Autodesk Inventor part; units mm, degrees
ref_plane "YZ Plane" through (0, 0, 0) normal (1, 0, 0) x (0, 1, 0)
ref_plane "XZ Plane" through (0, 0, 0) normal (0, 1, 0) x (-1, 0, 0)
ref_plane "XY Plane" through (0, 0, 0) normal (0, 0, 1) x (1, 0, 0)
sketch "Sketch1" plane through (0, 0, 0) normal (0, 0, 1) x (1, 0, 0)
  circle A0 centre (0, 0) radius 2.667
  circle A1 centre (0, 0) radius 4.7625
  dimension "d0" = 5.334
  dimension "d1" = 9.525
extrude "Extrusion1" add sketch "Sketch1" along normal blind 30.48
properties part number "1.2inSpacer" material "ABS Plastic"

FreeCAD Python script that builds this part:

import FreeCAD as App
import Part
import Sketcher

V = App.Vector
Q = App.Units.Quantity

doc = App.newDocument("Part")
params = doc.addObject("Spreadsheet::Sheet", "Params")
for row, (alias, value) in enumerate([
    ("sketch1_diameter", "0.21 in"),
    ("sketch1_diameter2", "0.375 in"),
    ("pad1_length", "1.2 in"),
], start=1):
    params.set(f"A{row}", alias)
    params.set(f"B{row}", "=" + value)
    params.setAlias(f"B{row}", alias)

body = doc.addObject("PartDesign::Body", "Body")

# Sketch on XY plane
sketch1 = doc.addObject("Sketcher::SketchObject", "Sketch")
body.addObject(sketch1)
sketch1.AttachmentSupport = (doc.XY_Plane, [""])
sketch1.MapMode = "FlatFace"
sketch1.addGeometry([
    Part.Circle(V(0, 0, 0), V(0, 0, 1), 4.8),
    Part.Circle(V(0, 0, 0), V(0, 0, 1), 2.7),
], False)
sketch1.addConstraint([
    Sketcher.Constraint("Coincident", 0, 3, -1, 1),
    Sketcher.Constraint("Coincident", 1, 3, -1, 1),
    Sketcher.Constraint("Diameter", 1, Q("0.21 in")),
    Sketcher.Constraint("Diameter", 0, Q("0.375 in")),
])
sketch1.setExpression("Constraints[2]", "Params.sketch1_diameter")
sketch1.setExpression("Constraints[3]", "Params.sketch1_diameter2")
pad1 = doc.addObject("PartDesign::Pad", "Pad")
body.addObject(pad1)
pad1.Profile = sketch1
pad1.setExpression("Length", "Params.pad1_length")

doc.recompute()
